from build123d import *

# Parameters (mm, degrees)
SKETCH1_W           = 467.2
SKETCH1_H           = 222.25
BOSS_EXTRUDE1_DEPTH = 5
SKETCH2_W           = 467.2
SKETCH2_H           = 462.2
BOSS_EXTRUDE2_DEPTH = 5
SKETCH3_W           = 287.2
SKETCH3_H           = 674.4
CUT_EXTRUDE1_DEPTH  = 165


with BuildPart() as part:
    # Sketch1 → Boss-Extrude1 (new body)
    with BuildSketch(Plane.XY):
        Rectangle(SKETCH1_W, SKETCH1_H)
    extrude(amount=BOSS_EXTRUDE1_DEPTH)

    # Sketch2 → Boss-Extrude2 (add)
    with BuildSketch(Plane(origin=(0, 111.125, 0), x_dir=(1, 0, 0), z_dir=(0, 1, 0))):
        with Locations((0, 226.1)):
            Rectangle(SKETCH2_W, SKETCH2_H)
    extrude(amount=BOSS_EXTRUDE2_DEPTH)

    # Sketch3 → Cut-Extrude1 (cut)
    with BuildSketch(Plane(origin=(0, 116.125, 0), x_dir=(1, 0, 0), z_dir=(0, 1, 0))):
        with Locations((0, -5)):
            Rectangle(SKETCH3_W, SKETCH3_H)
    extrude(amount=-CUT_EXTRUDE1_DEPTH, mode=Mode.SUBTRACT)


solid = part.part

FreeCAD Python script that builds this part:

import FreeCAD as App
import Part
import Sketcher
from FreeCAD import Vector

doc = App.newDocument("Part")
body = doc.addObject("PartDesign::Body", "Body")

sketch1 = body.newObject("Sketcher::SketchObject", "Sketch")
sketch1.AttachmentSupport = (doc.getObject("XY_Plane"), [""])
sketch1.MapMode = "FlatFace"
sketch1.addGeometry([
    Part.LineSegment(Vector(-234, 111, 0), Vector(-234, -111, 0)),
    Part.LineSegment(Vector(-234, -111, 0), Vector(234, -111, 0)),
    Part.LineSegment(Vector(234, -111, 0), Vector(234, 111, 0)),
    Part.LineSegment(Vector(234, 111, 0), Vector(-234, 111, 0)),
], False)
sketch1.addConstraint([
    Sketcher.Constraint("Coincident", 0, 2, 1, 1),
    Sketcher.Constraint("Coincident", 1, 2, 2, 1),
    Sketcher.Constraint("Coincident", 2, 2, 3, 1),
    Sketcher.Constraint("Coincident", 3, 2, 0, 1),
    Sketcher.Constraint("Vertical", 0),
    Sketcher.Constraint("Horizontal", 1),
    Sketcher.Constraint("Vertical", 2),
    Sketcher.Constraint("Horizontal", 3),
    Sketcher.Constraint("Symmetric", 0, 2, 2, 2, -1, 1),
    Sketcher.Constraint("DistanceX", 1, 1, 1, 2, 467.2),
    Sketcher.Constraint("DistanceY", 0, 2, 0, 1, 222.25),
])
pad1 = body.newObject("PartDesign::Pad", "Pad")
pad1.Profile = sketch1
pad1.Length = 5

sketch2 = body.newObject("Sketcher::SketchObject", "Sketch001")
sketch2.AttachmentSupport = (doc.getObject("XZ_Plane"), [""])
sketch2.MapMode = "FlatFace"
sketch2.AttachmentOffset = App.Placement(Vector(0, 0, -111.125), App.Rotation())
sketch2.addGeometry([
    Part.LineSegment(Vector(-234, -457, 0), Vector(-234, 5, 0)),
    Part.LineSegment(Vector(-234, 5, 0), Vector(234, 5, 0)),
    Part.LineSegment(Vector(234, 5, 0), Vector(234, -457, 0)),
    Part.LineSegment(Vector(234, -457, 0), Vector(-234, -457, 0)),
], False)
sketch2.addConstraint([
    Sketcher.Constraint("Coincident", 0, 2, 1, 1),
    Sketcher.Constraint("Coincident", 1, 2, 2, 1),
    Sketcher.Constraint("Coincident", 2, 2, 3, 1),
    Sketcher.Constraint("Coincident", 3, 2, 0, 1),
    Sketcher.Constraint("Vertical", 0),
    Sketcher.Constraint("Horizontal", 1),
    Sketcher.Constraint("Vertical", 2),
    Sketcher.Constraint("Horizontal", 3),
    Sketcher.Constraint("DistanceX", 1, 1, 1, 2, 467.2),
    Sketcher.Constraint("DistanceY", 0, 1, 0, 2, 462.2),
    Sketcher.Constraint("DistanceY", -1, 1, 0, 2, 5.0),
    Sketcher.Constraint("DistanceX", 0, 2, -1, 1, 233.6),
])
pad2 = body.newObject("PartDesign::Pad", "Pad001")
pad2.Profile = sketch2
pad2.Length = 5
pad2.Reversed = True

sketch3 = body.newObject("Sketcher::SketchObject", "Sketch002")
sketch3.AttachmentSupport = (doc.getObject("XZ_Plane"), [""])
sketch3.MapMode = "FlatFace"
sketch3.AttachmentOffset = App.Placement(Vector(0, 0, -116.125), App.Rotation())
sketch3.addGeometry([
    Part.LineSegment(Vector(-144, -332, 0), Vector(-144, 342, 0)),
    Part.LineSegment(Vector(-144, 342, 0), Vector(144, 342, 0)),
    Part.LineSegment(Vector(144, 342, 0), Vector(144, -332, 0)),
    Part.LineSegment(Vector(144, -332, 0), Vector(-144, -332, 0)),
], False)
sketch3.addConstraint([
    Sketcher.Constraint("Coincident", 0, 2, 1, 1),
    Sketcher.Constraint("Coincident", 1, 2, 2, 1),
    Sketcher.Constraint("Coincident", 2, 2, 3, 1),
    Sketcher.Constraint("Coincident", 3, 2, 0, 1),
    Sketcher.Constraint("Vertical", 0),
    Sketcher.Constraint("Horizontal", 1),
    Sketcher.Constraint("Vertical", 2),
    Sketcher.Constraint("Horizontal", 3),
    Sketcher.Constraint("DistanceX", 1, 1, 1, 2, 287.2),
    Sketcher.Constraint("DistanceY", 0, 1, 0, 2, 674.4),
    Sketcher.Constraint("DistanceX", 0, 2, -1, 1, 143.6),
    Sketcher.Constraint("DistanceY", -1, 1, 0, 2, 342.2),
])
pocket1 = body.newObject("PartDesign::Pocket", "Pocket")
pocket1.Profile = sketch3
pocket1.Length = 165
pocket1.Reversed = True

doc.recompute()
